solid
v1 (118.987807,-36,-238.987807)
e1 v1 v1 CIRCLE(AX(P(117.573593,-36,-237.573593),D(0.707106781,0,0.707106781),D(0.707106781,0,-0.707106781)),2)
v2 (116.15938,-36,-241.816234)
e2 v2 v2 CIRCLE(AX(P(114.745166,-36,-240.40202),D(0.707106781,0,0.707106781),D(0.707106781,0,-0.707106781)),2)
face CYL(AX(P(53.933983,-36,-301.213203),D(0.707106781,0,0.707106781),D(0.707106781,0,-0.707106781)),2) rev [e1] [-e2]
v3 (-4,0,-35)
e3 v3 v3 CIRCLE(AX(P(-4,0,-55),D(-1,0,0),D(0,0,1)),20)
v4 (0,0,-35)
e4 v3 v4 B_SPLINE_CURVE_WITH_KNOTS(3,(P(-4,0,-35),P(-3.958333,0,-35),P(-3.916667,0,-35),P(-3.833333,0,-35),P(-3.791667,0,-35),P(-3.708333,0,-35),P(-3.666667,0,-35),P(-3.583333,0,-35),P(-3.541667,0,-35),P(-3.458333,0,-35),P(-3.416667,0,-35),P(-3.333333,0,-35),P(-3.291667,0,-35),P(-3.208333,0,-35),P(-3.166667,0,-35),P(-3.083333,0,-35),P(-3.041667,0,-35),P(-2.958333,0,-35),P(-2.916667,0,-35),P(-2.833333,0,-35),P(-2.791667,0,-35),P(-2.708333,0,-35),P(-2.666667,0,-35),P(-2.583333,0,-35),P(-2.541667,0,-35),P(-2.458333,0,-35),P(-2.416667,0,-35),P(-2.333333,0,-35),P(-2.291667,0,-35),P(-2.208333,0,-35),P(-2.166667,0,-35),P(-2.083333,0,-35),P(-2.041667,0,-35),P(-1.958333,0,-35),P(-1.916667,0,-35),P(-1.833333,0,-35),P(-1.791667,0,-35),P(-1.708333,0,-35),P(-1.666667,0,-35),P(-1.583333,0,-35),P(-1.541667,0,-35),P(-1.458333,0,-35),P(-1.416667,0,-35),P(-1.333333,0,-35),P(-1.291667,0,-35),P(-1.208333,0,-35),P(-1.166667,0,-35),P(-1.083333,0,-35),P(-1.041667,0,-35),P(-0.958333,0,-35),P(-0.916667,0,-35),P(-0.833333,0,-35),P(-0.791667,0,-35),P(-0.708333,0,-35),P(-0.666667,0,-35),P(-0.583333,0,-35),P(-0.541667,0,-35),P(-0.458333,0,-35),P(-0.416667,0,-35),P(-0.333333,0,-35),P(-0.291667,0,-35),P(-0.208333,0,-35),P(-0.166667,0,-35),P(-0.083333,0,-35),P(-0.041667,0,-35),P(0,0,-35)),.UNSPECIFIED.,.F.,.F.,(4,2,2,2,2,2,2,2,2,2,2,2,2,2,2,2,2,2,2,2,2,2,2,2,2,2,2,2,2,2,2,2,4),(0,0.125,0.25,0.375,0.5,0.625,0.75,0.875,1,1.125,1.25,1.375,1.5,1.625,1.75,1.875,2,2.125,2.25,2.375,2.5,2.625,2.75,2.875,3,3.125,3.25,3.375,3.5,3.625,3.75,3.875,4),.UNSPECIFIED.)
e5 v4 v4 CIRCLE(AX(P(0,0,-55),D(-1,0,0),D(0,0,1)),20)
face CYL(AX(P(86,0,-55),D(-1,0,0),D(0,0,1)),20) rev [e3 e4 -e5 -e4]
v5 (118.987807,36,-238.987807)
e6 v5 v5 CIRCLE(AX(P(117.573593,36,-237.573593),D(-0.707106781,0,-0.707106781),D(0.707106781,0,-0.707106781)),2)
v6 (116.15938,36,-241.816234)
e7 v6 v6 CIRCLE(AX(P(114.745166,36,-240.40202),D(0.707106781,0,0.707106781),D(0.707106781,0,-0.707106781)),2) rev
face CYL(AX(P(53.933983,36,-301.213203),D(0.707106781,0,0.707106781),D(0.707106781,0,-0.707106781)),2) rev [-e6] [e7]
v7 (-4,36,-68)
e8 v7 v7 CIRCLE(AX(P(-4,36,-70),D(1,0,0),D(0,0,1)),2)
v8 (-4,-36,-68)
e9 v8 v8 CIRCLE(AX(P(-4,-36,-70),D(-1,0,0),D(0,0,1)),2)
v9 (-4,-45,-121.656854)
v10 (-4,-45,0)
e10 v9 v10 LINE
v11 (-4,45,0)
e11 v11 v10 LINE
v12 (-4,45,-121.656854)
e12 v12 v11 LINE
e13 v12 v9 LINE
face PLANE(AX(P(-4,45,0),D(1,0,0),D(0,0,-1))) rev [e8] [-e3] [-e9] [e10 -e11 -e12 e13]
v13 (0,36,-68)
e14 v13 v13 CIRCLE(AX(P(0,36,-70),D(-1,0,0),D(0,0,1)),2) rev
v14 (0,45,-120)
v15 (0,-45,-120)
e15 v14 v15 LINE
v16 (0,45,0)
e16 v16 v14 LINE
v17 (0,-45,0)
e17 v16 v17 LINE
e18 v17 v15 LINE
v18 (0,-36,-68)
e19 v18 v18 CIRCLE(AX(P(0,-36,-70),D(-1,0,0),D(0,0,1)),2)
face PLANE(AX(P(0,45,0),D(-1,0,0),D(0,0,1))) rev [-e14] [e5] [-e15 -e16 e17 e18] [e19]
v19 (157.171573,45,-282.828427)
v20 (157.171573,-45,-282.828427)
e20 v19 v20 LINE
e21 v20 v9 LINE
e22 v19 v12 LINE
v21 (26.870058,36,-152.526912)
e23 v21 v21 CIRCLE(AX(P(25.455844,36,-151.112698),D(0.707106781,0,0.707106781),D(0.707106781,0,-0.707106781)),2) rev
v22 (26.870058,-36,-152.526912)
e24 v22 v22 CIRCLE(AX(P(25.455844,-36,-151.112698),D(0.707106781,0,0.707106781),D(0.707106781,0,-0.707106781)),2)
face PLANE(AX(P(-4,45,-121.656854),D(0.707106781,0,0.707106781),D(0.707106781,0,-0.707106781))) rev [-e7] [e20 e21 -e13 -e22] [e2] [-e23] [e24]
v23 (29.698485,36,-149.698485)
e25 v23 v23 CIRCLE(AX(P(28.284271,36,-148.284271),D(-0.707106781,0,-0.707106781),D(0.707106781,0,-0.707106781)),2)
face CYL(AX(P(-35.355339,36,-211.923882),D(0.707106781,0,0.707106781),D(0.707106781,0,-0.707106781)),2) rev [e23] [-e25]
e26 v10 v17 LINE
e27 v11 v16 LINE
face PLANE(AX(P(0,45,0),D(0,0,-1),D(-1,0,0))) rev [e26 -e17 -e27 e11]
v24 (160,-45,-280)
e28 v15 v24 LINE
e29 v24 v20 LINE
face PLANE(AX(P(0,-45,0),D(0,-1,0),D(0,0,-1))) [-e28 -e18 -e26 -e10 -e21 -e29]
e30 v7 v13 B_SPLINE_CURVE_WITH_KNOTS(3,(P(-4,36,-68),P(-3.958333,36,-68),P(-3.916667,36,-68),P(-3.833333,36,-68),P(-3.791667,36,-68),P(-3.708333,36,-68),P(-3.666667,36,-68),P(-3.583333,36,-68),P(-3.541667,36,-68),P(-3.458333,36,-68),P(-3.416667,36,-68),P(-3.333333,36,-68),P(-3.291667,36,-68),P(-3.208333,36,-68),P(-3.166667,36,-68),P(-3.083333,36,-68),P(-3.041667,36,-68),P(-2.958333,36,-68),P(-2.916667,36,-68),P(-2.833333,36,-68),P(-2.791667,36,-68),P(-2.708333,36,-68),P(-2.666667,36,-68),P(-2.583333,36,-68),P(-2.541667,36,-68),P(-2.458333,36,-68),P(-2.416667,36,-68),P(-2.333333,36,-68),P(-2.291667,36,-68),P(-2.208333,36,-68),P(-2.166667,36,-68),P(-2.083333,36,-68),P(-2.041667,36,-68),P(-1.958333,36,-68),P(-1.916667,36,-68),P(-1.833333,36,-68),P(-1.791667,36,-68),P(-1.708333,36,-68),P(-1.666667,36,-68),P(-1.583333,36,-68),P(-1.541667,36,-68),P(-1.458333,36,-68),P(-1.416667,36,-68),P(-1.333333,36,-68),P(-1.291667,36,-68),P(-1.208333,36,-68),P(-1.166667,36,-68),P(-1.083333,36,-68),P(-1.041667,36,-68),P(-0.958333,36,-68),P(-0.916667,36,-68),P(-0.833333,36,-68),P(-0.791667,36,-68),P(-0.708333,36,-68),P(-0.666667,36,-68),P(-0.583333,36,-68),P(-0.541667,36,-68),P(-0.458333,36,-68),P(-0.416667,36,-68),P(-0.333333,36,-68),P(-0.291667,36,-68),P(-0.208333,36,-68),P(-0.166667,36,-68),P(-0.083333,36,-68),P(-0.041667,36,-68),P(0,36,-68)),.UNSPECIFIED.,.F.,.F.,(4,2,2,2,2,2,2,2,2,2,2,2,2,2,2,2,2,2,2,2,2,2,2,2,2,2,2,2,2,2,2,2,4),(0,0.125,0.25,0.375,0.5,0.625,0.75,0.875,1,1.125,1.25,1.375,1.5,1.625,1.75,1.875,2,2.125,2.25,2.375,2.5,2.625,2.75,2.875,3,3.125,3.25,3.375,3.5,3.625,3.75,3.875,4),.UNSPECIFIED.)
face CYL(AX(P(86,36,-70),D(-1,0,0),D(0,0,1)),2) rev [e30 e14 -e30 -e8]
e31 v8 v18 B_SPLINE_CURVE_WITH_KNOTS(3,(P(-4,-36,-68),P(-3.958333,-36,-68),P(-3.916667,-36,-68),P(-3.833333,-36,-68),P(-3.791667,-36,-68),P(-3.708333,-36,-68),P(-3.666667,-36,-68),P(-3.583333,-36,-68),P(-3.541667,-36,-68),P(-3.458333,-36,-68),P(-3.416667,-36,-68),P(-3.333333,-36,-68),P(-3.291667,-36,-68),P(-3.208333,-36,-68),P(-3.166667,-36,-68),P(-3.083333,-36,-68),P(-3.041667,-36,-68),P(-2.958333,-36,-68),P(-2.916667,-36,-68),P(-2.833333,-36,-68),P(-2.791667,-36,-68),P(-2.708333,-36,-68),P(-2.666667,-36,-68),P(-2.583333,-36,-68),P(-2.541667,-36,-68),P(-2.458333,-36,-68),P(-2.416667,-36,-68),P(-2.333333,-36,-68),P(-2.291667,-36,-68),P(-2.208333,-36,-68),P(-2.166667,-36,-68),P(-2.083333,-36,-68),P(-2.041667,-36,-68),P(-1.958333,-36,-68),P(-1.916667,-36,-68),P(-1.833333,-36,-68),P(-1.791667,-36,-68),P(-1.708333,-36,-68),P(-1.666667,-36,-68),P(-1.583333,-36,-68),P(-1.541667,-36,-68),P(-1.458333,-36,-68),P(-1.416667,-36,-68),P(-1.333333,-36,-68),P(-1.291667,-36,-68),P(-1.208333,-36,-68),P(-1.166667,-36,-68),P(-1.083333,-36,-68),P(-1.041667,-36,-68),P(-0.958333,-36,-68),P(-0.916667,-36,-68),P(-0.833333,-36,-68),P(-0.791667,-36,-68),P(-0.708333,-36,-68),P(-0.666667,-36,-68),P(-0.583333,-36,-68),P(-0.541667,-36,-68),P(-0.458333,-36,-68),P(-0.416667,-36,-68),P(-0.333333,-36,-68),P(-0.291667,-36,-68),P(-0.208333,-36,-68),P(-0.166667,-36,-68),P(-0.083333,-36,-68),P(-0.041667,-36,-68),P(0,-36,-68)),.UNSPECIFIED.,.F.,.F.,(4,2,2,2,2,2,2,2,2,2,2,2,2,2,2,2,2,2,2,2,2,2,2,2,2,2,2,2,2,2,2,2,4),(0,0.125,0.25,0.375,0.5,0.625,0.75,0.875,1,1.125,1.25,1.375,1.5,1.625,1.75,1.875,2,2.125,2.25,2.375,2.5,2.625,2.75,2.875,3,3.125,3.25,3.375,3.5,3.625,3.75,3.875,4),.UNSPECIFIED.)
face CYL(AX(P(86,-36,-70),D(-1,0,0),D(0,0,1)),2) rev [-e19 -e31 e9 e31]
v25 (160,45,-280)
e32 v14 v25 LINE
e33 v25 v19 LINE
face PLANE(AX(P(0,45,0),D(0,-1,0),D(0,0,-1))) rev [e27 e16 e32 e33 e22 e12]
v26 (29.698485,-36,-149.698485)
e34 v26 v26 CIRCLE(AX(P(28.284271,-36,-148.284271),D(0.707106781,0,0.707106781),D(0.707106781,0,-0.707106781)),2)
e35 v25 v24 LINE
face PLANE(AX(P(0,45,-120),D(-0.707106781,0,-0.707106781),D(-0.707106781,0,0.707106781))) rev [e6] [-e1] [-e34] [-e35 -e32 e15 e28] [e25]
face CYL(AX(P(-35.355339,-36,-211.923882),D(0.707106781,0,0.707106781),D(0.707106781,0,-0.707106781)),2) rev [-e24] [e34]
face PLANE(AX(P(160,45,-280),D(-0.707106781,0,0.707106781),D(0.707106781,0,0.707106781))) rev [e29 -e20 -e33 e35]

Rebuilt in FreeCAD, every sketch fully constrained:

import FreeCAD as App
import Part
import Sketcher
Q = App.Units.Quantity

doc = App.newDocument("Part")
body = doc.addObject("PartDesign::Body", "Body")

# Sketch on XZ plane
sketch1 = doc.addObject("Sketcher::SketchObject", "Sketch")
body.addObject(sketch1)
sketch1.AttachmentSupport = (doc.XZ_Plane, [""])
sketch1.MapMode = "FlatFace"
sketch1.addGeometry([
    Part.LineSegment(App.Vector(0, 0, 0), App.Vector(0, -120, 0)),  # 0
    Part.LineSegment(App.Vector(0, -120, 0), App.Vector(160, -280, 0)),  # 1
    Part.LineSegment(App.Vector(160, -280, 0), App.Vector(157.2, -282.8, 0)),  # 2
    Part.LineSegment(App.Vector(157.2, -282.8, 0), App.Vector(-4, -121.7, 0)),  # 3
    Part.LineSegment(App.Vector(-4, -121.7, 0), App.Vector(-4, 0, 0)),  # 4
    Part.LineSegment(App.Vector(-4, 0, 0), App.Vector(0, 0, 0)),  # 5
], False)
sketch1.addConstraint([
    Sketcher.Constraint("Coincident", 0, 2, 1, 1),
    Sketcher.Constraint("Coincident", 1, 2, 2, 1),
    Sketcher.Constraint("Coincident", 2, 2, 3, 1),
    Sketcher.Constraint("Coincident", 3, 2, 4, 1),
    Sketcher.Constraint("Coincident", 4, 2, 5, 1),
    Sketcher.Constraint("Coincident", 5, 2, 0, 1),
    Sketcher.Constraint("Vertical", 0),
    Sketcher.Constraint("Vertical", 4),
    Sketcher.Constraint("Horizontal", 5),
    Sketcher.Constraint("Coincident", 5, 2, -1, 1),
    Sketcher.Constraint("Perpendicular", 1, 2),
    Sketcher.Constraint("Perpendicular", 2, 3),
    Sketcher.Constraint("DistanceX", 5, 1, 5, 2, 4.0),
    Sketcher.Constraint("DistanceY", 0, 2, 0, 1, 120.0),
    Sketcher.Constraint("Angle", 1, Q("-45 deg")),
    Sketcher.Constraint("Distance", 2, 4.0),
    Sketcher.Constraint("DistanceX", -1, 1, 1, 2, 160.0),
])
pad1 = doc.addObject("PartDesign::Pad", "Pad")
body.addObject(pad1)
pad1.Profile = sketch1
pad1.Length = 90
pad1.Midplane = True

# Sketch on YZ plane
sketch2 = doc.addObject("Sketcher::SketchObject", "Sketch001")
body.addObject(sketch2)
sketch2.AttachmentSupport = (doc.YZ_Plane, [""])
sketch2.MapMode = "FlatFace"
sketch2.AttachmentOffset = App.Placement(App.Vector(0, 0, -4), App.Rotation())
sketch2.addGeometry(Part.Circle(App.Vector(-36, -70, 0), App.Vector(0, 0, 1), 2), False)
sketch2.addConstraint([
    Sketcher.Constraint("Diameter", 0, 4.0),
    Sketcher.Constraint("DistanceX", 0, 3, -1, 1, 36.0),
    Sketcher.Constraint("DistanceY", 0, 3, -1, 1, 70.0),
])
pocket1 = doc.addObject("PartDesign::Pocket", "Pocket")
body.addObject(pocket1)
pocket1.Profile = sketch2
pocket1.Length = 90
pocket1.Reversed = True

# Sketch on an angled plane
sketch3 = doc.addObject("Sketcher::SketchObject", "Sketch002")
body.addObject(sketch3)
sketch3.Placement = App.Placement(App.Vector(-60, 0, -60), App.Rotation(App.Vector(0.707106781, 0, -0.707106781), App.Vector(0, 0.999999999, 0), App.Vector(0.707106781, 0, 0.707106781), "ZXY"))
sketch3.addGeometry([
    Part.Circle(App.Vector(124.9, -36, 0), App.Vector(0, 0, 1), 2),
    Part.Circle(App.Vector(251.1, -36, 0), App.Vector(0, 0, 1), 2),
], False)
sketch3.addConstraint([
    Sketcher.Constraint("Equal", 0, 1),
    Sketcher.Constraint("Horizontal", 0, 3, 1, 3),
    Sketcher.Constraint("Diameter", 0, 4.0),
    Sketcher.Constraint("DistanceY", 0, 3, -1, 1, 36.0),
    Sketcher.Constraint("DistanceX", 0, 3, 1, 3, 126.27417),
    Sketcher.Constraint("DistanceX", -1, 1, 0, 3, 124.852814),
])
pocket2 = doc.addObject("PartDesign::Pocket", "Pocket001")
body.addObject(pocket2)
pocket2.Profile = sketch3
pocket2.Length = 90
doc.recompute()

mirrored = doc.addObject("PartDesign::Mirrored", "Mirrored")
body.addObject(mirrored)
mirrored.Originals = [pocket1, pocket2]
mirrored.MirrorPlane = (doc.XZ_Plane, [""])
body.Tip = mirrored

# Sketch on YZ plane
sketch4 = doc.addObject("Sketcher::SketchObject", "Sketch003")
body.addObject(sketch4)
sketch4.AttachmentSupport = (doc.YZ_Plane, [""])
sketch4.MapMode = "FlatFace"
sketch4.AttachmentOffset = App.Placement(App.Vector(0, 0, -4), App.Rotation())
sketch4.addGeometry(Part.Circle(App.Vector(0, -55, 0), App.Vector(0, 0, 1), 20), False)
sketch4.addConstraint([
    Sketcher.Constraint("PointOnObject", 0, 3, -2),
    Sketcher.Constraint("Diameter", 0, 40.0),
    Sketcher.Constraint("DistanceY", 0, 3, -1, 1, 55.0),
])
pocket3 = doc.addObject("PartDesign::Pocket", "Pocket002")
body.addObject(pocket3)
pocket3.Profile = sketch4
pocket3.Length = 90
pocket3.Reversed = True

doc.recompute()
